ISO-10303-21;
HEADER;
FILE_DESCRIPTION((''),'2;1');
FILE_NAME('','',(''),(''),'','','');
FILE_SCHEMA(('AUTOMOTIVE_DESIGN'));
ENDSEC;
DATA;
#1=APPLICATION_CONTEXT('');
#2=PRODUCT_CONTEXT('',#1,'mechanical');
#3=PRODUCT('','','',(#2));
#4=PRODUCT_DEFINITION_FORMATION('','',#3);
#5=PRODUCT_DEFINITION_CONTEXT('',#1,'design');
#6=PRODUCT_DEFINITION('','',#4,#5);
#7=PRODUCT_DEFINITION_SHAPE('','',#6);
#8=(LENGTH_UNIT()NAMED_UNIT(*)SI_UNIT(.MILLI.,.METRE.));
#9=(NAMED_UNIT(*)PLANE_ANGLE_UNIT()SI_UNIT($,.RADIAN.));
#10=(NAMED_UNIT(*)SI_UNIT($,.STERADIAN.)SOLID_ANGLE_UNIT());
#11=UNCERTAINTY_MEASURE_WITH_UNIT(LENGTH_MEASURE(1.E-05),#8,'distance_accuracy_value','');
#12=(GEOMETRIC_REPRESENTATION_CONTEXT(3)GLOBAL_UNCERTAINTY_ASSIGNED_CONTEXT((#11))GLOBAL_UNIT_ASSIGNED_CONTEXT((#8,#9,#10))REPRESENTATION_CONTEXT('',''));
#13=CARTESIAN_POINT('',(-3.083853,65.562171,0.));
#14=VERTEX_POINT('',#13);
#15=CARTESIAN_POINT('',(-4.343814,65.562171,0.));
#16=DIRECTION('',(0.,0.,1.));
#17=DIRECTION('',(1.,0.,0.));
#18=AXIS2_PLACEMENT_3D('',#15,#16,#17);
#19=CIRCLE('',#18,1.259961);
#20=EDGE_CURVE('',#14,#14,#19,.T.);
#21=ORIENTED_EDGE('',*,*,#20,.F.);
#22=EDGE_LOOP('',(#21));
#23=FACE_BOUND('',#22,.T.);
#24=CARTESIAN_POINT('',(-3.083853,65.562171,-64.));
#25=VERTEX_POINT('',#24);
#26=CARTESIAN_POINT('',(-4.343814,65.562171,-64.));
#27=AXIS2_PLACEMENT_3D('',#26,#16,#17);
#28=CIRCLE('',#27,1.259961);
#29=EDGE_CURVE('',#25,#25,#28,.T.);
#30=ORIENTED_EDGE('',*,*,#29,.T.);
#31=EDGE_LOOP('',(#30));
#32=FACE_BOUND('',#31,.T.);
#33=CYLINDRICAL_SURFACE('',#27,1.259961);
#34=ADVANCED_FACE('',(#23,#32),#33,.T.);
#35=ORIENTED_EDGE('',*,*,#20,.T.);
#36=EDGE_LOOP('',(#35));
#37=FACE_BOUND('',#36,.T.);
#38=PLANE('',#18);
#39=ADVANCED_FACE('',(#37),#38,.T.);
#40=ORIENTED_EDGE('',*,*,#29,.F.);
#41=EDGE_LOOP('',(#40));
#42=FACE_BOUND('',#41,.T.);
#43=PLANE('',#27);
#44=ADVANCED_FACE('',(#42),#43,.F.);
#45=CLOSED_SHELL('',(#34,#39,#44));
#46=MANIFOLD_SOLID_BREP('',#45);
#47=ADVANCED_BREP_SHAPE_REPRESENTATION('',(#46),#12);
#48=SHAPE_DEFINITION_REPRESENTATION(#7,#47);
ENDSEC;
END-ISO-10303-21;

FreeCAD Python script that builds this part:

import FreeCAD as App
import Part
import Sketcher
from FreeCAD import Vector
Q = App.Units.Quantity

doc = App.newDocument("Part")
body = doc.addObject("PartDesign::Body", "Body")

# Sketch on XY plane
sketch1 = doc.addObject("Sketcher::SketchObject", "Sketch")
body.addObject(sketch1)
sketch1.AttachmentSupport = (doc.XY_Plane, [""])
sketch1.MapMode = "FlatFace"
sketch1.addGeometry(Part.Circle(Vector(-4.3, 65.6, 0), Vector(0, 0, 1), 1.3), False)
sketch1.addConstraint([
    Sketcher.Constraint("Diameter", 0, Q("2.519922 mm")),
    Sketcher.Constraint("DistanceY", -1, 1, 0, 3, Q("65.562171 mm")),
    Sketcher.Constraint("DistanceX", 0, 3, -1, 1, Q("4.343814 mm")),
])
pad1 = doc.addObject("PartDesign::Pad", "Pad")
body.addObject(pad1)
pad1.Profile = sketch1
pad1.Length = 64
pad1.Reversed = True

doc.recompute()
